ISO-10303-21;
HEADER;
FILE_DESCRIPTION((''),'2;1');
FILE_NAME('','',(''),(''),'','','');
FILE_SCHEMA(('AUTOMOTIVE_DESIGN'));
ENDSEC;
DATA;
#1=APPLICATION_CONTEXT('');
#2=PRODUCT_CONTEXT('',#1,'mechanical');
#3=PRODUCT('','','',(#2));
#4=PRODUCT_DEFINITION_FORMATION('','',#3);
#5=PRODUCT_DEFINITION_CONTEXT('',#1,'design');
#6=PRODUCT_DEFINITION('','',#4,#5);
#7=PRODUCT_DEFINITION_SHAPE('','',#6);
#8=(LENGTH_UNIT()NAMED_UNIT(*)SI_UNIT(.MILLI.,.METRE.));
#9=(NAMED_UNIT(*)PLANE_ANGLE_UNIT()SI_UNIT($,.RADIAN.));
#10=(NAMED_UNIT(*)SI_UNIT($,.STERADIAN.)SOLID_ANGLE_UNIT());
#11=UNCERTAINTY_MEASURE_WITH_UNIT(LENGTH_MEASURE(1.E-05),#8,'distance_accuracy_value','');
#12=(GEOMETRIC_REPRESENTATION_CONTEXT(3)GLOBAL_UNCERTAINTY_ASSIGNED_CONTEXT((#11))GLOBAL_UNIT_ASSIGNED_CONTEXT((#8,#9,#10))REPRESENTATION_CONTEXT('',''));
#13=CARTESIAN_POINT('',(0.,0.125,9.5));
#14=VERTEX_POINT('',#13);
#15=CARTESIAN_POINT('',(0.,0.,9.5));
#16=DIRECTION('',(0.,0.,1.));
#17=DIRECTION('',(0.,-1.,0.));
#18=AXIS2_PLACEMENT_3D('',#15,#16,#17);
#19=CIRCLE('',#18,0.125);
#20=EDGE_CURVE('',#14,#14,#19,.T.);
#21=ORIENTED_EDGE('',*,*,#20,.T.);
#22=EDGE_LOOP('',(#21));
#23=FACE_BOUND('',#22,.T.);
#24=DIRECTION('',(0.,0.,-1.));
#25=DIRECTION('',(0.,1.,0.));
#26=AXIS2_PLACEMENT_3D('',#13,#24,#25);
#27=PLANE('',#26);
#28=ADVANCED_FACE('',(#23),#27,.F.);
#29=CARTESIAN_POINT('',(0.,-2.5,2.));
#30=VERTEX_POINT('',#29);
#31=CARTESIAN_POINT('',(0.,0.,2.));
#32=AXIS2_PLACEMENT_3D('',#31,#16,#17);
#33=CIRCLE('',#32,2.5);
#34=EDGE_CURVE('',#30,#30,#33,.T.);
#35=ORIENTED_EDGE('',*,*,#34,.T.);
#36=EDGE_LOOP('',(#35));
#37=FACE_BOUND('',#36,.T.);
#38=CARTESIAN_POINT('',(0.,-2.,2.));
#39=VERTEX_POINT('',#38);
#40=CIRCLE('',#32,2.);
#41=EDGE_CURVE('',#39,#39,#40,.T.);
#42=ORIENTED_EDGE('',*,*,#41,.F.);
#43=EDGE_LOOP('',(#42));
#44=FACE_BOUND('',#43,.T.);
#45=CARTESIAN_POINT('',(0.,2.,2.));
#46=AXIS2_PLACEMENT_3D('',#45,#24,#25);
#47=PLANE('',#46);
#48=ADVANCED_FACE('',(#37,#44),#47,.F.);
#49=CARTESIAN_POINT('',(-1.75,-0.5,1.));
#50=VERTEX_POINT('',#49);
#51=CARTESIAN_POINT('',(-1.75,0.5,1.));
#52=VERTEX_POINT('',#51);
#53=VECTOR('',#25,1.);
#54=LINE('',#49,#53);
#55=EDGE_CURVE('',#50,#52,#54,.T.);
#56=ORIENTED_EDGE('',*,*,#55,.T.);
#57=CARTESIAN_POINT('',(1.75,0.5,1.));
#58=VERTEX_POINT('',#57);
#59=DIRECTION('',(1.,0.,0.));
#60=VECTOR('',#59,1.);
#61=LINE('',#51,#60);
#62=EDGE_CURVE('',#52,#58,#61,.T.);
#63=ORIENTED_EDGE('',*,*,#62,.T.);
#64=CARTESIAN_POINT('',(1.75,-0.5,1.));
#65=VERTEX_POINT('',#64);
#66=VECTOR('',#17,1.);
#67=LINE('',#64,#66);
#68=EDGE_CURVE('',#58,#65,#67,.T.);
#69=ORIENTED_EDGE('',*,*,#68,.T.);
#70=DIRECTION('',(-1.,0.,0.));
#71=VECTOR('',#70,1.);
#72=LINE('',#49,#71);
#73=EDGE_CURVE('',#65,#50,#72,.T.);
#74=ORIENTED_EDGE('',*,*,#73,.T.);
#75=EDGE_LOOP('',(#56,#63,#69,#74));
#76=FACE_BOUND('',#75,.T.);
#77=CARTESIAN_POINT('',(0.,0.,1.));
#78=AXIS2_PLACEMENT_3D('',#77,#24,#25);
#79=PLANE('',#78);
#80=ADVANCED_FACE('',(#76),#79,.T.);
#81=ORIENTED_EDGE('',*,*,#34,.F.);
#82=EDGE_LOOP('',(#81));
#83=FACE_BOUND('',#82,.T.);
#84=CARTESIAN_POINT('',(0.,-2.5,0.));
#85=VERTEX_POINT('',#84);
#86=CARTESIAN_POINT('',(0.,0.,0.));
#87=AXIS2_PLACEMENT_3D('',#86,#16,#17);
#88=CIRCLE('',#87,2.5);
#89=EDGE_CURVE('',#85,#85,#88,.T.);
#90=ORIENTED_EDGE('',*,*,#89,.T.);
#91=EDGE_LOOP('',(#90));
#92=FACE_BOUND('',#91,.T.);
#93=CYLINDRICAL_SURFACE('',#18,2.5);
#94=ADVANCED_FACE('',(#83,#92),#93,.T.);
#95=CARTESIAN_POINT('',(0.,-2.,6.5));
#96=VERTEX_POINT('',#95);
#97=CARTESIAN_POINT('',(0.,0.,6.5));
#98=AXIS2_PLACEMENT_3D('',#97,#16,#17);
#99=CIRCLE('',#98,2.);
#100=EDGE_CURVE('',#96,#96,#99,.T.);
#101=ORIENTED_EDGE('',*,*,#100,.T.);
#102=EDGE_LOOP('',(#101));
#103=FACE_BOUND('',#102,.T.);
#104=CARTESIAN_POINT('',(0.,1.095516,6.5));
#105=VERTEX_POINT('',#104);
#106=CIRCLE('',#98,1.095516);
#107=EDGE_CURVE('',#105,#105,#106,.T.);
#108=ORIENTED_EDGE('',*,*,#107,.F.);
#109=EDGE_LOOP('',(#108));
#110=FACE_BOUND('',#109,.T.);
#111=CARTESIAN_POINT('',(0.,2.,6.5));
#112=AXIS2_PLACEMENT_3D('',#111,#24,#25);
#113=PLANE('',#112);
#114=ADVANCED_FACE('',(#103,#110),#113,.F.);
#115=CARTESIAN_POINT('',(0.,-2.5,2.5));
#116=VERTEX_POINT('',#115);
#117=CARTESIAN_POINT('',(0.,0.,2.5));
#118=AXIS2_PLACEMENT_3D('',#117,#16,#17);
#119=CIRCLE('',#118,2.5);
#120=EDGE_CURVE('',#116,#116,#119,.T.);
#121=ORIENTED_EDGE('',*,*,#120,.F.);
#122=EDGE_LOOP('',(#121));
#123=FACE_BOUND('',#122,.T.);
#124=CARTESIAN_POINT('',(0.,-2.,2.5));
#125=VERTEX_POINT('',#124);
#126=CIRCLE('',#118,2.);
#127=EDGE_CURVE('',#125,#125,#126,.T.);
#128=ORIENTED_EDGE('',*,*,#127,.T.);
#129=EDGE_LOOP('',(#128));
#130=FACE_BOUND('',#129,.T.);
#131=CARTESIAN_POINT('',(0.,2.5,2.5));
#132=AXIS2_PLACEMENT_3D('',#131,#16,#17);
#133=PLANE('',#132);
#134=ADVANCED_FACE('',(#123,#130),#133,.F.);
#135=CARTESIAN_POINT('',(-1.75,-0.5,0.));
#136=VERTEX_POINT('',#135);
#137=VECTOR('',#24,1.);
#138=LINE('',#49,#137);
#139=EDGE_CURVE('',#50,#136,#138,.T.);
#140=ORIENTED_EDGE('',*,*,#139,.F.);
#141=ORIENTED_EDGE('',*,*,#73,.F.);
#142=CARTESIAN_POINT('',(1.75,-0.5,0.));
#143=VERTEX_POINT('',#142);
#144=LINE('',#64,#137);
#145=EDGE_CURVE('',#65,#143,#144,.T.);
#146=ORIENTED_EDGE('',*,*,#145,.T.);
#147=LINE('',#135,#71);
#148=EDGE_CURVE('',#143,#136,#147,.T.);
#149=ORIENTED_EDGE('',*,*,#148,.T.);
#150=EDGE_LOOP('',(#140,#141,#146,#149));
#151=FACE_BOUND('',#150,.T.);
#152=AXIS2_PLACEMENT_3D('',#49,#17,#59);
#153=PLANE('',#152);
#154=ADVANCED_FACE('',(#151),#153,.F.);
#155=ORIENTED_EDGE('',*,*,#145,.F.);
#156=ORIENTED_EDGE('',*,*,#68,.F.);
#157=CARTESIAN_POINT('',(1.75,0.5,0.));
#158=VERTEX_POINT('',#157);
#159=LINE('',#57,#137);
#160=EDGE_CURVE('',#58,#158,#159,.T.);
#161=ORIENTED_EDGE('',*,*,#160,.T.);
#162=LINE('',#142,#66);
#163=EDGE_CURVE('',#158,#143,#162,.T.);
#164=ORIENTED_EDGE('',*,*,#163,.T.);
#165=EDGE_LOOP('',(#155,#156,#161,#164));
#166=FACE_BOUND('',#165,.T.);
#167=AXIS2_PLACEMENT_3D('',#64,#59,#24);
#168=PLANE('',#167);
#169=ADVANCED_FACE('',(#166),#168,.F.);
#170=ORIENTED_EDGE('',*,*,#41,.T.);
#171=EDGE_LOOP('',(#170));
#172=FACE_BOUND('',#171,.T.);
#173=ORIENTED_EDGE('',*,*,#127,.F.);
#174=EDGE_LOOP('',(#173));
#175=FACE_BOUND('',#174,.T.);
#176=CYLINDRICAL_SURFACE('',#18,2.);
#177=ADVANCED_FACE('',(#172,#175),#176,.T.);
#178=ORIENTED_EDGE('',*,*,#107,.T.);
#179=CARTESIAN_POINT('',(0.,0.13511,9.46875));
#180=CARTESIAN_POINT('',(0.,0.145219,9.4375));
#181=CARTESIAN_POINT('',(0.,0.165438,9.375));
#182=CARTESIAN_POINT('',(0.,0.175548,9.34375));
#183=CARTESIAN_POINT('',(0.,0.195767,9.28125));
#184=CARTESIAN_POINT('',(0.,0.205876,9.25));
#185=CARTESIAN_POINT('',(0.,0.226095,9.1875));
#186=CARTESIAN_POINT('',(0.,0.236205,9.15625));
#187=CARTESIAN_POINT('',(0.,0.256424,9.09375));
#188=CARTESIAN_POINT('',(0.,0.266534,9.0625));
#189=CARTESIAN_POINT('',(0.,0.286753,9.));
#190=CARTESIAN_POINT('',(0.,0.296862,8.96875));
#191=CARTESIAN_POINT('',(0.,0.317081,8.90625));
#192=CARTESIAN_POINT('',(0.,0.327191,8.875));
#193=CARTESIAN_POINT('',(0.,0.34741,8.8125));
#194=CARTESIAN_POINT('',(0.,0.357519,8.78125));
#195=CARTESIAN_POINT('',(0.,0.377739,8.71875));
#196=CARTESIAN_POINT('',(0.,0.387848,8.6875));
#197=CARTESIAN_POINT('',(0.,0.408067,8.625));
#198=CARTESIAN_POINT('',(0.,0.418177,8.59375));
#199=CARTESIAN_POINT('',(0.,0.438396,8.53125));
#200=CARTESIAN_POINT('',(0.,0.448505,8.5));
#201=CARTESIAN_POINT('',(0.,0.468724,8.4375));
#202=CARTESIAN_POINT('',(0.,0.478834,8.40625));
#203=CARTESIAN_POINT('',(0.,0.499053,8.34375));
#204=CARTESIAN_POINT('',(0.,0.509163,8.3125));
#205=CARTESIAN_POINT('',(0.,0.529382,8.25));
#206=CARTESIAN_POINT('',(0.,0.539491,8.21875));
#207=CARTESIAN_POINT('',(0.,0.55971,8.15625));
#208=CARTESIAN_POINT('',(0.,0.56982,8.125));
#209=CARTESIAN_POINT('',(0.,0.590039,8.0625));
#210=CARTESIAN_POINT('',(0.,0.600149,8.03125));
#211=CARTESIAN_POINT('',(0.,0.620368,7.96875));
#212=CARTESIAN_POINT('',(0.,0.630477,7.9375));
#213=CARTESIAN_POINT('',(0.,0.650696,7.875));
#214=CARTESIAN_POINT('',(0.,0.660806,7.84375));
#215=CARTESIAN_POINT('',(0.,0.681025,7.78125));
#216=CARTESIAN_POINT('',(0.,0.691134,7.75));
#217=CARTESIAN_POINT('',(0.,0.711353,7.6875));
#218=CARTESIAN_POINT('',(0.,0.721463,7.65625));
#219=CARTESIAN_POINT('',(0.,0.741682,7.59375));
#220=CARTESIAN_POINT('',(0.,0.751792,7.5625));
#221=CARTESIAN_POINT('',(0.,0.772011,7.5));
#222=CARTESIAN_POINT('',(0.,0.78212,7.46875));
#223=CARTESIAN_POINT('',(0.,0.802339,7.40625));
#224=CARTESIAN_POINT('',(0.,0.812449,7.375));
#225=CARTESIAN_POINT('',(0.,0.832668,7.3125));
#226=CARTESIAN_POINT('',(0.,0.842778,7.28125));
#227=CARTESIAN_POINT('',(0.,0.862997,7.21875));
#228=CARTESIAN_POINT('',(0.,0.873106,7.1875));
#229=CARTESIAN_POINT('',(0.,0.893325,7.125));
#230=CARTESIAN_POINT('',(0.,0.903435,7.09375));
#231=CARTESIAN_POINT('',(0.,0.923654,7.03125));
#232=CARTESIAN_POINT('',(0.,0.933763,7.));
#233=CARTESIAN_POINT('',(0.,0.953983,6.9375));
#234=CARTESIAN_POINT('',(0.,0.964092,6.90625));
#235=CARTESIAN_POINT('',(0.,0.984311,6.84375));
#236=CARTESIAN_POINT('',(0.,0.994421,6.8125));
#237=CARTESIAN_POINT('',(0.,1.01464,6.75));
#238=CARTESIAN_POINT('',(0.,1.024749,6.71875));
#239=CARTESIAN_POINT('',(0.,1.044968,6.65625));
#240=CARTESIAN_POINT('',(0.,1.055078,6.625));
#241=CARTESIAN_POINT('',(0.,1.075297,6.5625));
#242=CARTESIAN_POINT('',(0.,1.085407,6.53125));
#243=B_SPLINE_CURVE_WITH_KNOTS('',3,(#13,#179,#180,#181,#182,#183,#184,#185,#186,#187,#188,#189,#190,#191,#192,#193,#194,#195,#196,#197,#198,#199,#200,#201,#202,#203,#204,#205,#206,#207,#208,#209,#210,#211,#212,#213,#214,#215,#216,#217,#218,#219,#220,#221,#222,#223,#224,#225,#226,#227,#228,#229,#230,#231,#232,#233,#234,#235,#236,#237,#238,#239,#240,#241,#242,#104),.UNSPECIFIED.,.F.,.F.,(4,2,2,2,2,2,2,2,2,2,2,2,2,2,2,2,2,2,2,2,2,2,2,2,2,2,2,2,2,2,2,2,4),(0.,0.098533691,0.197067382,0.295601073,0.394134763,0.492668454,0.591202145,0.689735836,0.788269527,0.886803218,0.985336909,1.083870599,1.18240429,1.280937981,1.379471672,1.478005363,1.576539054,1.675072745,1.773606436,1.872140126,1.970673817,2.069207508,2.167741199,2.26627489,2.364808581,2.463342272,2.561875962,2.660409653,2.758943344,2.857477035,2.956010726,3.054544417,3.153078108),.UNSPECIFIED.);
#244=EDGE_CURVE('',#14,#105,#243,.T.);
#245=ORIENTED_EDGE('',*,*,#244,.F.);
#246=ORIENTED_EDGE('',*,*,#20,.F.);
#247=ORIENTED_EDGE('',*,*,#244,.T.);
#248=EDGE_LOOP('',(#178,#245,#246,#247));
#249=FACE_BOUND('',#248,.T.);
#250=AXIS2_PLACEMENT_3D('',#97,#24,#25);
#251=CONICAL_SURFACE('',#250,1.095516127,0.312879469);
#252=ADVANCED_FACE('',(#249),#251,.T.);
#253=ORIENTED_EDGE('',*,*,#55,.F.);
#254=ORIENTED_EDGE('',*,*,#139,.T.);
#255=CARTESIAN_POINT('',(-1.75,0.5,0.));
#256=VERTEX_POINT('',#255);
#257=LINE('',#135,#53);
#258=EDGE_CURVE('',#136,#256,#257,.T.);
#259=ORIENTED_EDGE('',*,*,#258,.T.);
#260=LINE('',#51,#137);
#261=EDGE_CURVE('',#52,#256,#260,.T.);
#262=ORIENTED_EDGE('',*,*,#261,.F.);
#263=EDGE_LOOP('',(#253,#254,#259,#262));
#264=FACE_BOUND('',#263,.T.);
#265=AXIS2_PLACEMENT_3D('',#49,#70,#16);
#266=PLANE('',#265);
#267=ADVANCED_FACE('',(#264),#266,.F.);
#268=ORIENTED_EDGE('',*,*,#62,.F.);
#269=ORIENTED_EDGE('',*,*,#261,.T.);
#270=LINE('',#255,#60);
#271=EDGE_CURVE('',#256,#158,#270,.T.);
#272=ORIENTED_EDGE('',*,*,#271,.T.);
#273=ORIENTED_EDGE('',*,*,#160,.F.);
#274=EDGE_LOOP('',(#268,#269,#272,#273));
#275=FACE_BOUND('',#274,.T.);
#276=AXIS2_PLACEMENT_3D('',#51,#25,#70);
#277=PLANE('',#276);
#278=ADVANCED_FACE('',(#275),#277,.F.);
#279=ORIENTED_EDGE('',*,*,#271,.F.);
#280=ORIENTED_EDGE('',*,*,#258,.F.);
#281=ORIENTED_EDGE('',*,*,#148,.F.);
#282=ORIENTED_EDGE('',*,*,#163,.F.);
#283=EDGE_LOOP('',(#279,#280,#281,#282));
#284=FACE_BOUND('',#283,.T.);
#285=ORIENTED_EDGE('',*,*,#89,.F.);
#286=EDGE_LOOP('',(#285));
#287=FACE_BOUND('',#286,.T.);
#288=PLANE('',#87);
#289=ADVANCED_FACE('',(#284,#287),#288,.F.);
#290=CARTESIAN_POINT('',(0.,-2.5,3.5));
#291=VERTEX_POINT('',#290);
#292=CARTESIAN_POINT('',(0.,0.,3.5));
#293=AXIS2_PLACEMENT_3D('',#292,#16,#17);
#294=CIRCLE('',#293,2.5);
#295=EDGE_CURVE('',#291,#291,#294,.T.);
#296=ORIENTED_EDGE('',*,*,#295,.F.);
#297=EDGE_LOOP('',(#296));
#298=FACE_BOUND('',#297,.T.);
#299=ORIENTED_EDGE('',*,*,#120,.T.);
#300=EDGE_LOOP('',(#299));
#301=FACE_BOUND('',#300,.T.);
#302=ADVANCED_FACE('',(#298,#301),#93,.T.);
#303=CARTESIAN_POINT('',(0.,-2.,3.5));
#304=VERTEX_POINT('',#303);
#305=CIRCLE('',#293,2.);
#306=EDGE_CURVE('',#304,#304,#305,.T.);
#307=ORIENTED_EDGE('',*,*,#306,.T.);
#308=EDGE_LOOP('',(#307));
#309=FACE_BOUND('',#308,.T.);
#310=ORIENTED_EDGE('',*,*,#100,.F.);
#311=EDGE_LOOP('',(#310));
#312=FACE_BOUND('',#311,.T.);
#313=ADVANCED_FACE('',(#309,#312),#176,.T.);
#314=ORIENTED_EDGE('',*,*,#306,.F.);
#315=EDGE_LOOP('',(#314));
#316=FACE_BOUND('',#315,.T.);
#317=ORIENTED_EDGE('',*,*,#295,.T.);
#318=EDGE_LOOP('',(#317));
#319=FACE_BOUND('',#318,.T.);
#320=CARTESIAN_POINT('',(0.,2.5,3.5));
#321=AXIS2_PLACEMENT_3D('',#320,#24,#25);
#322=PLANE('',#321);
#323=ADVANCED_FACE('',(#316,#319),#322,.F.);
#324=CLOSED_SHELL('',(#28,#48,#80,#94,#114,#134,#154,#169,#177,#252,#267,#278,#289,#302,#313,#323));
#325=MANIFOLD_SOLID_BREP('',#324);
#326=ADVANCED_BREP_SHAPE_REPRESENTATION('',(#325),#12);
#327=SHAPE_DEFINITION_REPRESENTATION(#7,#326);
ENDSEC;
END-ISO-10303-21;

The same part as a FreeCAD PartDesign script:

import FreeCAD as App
import Part
import Sketcher

V = App.Vector
Q = App.Units.Quantity


def add_polygon(sketch, points):
    """Adds a closed chain of lines whose ends are joined by coincident constraints."""
    first, n = sketch.GeometryCount, len(points)
    for a, b in zip(points, points[1:] + points[:1]):
        sketch.addGeometry(Part.LineSegment(App.Vector(*a, 0), App.Vector(*b, 0)), False)
    for i in range(n):
        sketch.addConstraint(Sketcher.Constraint("Coincident", first + i, 2, first + (i + 1) % n, 1))

doc = App.newDocument("Part")
body = doc.addObject("PartDesign::Body", "Body")

sketch1 = doc.addObject("Sketcher::SketchObject", "Sketch")
body.addObject(sketch1)
sketch1.AttachmentSupport = (doc.YZ_Plane, [""])
sketch1.MapMode = "FlatFace"
add_polygon(sketch1, [(0, 0), (2.5, 0), (2.5, 2), (2, 2), (2, 2.5), (2.5, 2.5), (2.5, 3.5), (2, 3.5), (2, 6.5), (1.095516, 6.5), (0.125, 9.5), (0, 9.5)])
sketch1.addConstraint(Sketcher.Constraint("Horizontal", 0))
sketch1.addConstraint(Sketcher.Constraint("Vertical", 1))
sketch1.addConstraint(Sketcher.Constraint("Horizontal", 2))
sketch1.addConstraint(Sketcher.Constraint("Vertical", 3))
sketch1.addConstraint(Sketcher.Constraint("Horizontal", 4))
sketch1.addConstraint(Sketcher.Constraint("Vertical", 5))
sketch1.addConstraint(Sketcher.Constraint("Horizontal", 6))
sketch1.addConstraint(Sketcher.Constraint("Vertical", 7))
sketch1.addConstraint(Sketcher.Constraint("Horizontal", 8))
sketch1.addConstraint(Sketcher.Constraint("Horizontal", 10))
sketch1.addConstraint(Sketcher.Constraint("Vertical", 11))
sketch1.addConstraint(Sketcher.Constraint("Coincident", 11, 2, -1, 1))
sketch1.addConstraint(Sketcher.Constraint("Vertical", 1, 2, 4, 2))
sketch1.addConstraint(Sketcher.Constraint("Vertical", 3, 2, 6, 2))
sketch1.addConstraint(Sketcher.Constraint("Equal", 6, 3))
sketch1.addConstraint(Sketcher.Constraint("DistanceY", 1, 1, 1, 2, Q("2 mm")))
sketch1.addConstraint(Sketcher.Constraint("DistanceY", 5, 1, 5, 2, Q("1 mm")))
sketch1.addConstraint(Sketcher.Constraint("DistanceY", 7, 1, 7, 2, Q("3 mm")))
sketch1.addConstraint(Sketcher.Constraint("DistanceX", 0, 1, 0, 2, Q("2.5 mm")))
sketch1.addConstraint(Sketcher.Constraint("DistanceX", 2, 2, 2, 1, Q("0.5 mm")))
sketch1.addConstraint(Sketcher.Constraint("DistanceY", 11, 2, 11, 1, Q("9.5 mm")))
sketch1.addConstraint(Sketcher.Constraint("DistanceX", 10, 2, 10, 1, Q("0.125 mm")))
sketch1.addConstraint(Sketcher.Constraint("Distance", 9, Q("3.153078 mm")))
revolution = doc.addObject("PartDesign::Revolution", "Revolution")
body.addObject(revolution)
revolution.Profile = sketch1
revolution.ReferenceAxis = (sketch1, ["V_Axis"])
revolution.Angle = 360

sketch2 = doc.addObject("Sketcher::SketchObject", "Sketch001")
body.addObject(sketch2)
sketch2.AttachmentSupport = (doc.XY_Plane, [""])
sketch2.MapMode = "FlatFace"
add_polygon(sketch2, [(1.75, 0.5), (1.75, -0.5), (-1.75, -0.5), (-1.75, 0.5)])
sketch2.addConstraint(Sketcher.Constraint("Vertical", 0))
sketch2.addConstraint(Sketcher.Constraint("Horizontal", 1))
sketch2.addConstraint(Sketcher.Constraint("Vertical", 2))
sketch2.addConstraint(Sketcher.Constraint("Horizontal", 3))
sketch2.addConstraint(Sketcher.Constraint("Symmetric", 0, 2, 2, 2, -1, 1))
sketch2.addConstraint(Sketcher.Constraint("DistanceY", 0, 2, 0, 1, Q("1 mm")))
sketch2.addConstraint(Sketcher.Constraint("DistanceX", 1, 2, 1, 1, Q("3.5 mm")))
pocket1 = doc.addObject("PartDesign::Pocket", "Pocket")
body.addObject(pocket1)
pocket1.Profile = sketch2
pocket1.Length = 1
pocket1.Reversed = True

doc.recompute()
